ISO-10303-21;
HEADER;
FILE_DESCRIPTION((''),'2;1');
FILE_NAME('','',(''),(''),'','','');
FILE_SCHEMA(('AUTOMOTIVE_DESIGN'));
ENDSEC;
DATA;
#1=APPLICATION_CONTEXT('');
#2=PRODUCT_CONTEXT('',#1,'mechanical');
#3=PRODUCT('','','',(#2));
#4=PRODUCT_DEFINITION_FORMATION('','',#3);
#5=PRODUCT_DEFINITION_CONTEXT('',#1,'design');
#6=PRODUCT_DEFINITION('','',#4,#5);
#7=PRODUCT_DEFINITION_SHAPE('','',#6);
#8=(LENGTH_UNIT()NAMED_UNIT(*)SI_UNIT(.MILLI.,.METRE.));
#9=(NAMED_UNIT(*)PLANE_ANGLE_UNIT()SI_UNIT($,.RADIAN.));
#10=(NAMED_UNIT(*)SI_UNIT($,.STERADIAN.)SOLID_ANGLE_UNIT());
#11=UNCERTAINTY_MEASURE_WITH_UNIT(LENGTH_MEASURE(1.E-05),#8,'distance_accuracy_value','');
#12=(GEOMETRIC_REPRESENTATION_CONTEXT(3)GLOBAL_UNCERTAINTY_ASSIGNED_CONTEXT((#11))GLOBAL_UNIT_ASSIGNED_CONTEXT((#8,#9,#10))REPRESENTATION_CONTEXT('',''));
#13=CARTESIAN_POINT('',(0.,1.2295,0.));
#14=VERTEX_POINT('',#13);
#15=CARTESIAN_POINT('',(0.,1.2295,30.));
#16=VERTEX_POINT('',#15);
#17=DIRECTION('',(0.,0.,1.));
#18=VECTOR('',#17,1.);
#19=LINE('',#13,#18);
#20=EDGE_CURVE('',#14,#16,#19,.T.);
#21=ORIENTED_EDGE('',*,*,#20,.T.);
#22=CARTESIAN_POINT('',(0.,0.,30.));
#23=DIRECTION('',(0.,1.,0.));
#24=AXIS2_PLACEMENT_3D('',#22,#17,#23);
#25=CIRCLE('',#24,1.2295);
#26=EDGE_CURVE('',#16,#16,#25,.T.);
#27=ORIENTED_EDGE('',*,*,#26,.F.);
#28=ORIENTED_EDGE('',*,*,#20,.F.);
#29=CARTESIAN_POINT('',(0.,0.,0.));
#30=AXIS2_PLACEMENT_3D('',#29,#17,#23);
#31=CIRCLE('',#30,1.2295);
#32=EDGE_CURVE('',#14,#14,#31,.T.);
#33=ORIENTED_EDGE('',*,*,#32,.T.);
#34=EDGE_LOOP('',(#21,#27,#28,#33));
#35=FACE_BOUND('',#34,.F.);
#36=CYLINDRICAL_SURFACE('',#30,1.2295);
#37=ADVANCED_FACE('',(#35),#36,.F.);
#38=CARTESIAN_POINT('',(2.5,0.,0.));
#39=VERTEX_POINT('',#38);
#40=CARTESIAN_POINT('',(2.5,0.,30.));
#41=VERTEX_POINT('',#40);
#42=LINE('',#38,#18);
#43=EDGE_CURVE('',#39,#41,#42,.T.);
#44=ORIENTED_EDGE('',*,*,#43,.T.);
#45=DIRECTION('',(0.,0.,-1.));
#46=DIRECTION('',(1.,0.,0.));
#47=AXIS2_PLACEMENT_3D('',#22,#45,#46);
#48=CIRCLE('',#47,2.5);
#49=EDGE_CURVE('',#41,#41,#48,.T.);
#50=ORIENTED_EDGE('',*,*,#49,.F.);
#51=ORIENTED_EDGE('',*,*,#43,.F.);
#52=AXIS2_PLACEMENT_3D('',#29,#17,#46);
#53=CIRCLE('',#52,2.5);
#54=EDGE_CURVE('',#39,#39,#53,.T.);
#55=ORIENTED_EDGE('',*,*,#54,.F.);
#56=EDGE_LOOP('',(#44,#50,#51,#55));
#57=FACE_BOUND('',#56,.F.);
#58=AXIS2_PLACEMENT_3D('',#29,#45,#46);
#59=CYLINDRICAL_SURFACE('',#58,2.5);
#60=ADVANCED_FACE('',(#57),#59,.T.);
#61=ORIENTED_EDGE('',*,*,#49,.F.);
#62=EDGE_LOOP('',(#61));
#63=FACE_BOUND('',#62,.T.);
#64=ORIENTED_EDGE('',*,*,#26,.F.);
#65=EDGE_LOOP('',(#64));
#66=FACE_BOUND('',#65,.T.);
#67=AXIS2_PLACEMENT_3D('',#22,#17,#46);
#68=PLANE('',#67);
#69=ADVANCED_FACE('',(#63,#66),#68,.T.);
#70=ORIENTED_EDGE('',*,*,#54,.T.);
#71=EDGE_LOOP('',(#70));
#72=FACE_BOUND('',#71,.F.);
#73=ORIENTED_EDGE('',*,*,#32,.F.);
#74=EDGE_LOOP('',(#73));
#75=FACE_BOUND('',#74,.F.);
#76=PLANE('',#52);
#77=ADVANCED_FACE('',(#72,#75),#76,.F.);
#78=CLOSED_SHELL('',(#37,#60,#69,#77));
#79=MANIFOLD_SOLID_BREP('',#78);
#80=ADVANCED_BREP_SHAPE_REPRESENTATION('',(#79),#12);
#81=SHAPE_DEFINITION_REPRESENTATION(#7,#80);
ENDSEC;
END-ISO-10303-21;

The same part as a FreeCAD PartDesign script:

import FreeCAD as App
import Part
import Sketcher

V = App.Vector
Q = App.Units.Quantity

doc = App.newDocument("Part")
body = doc.addObject("PartDesign::Body", "Body")

# Sketch on XY plane
sketch1 = body.newObject("Sketcher::SketchObject", "Sketch")
sketch1.AttachmentSupport = (doc.getObject("XY_Plane"), [""])
sketch1.MapMode = "FlatFace"
sketch1.addGeometry(Part.Circle(V(0, 0, 0), V(0, 0, 1), 2.5), False)
sketch1.addConstraint([
    Sketcher.Constraint("Coincident", 0, 3, -1, 1),
    Sketcher.Constraint("Diameter", 0, Q("5 mm")),
])
pad1 = body.newObject("PartDesign::Pad", "Pad")
pad1.Profile = sketch1
pad1.Length = 30

# Sketch on XY plane
sketch2 = body.newObject("Sketcher::SketchObject", "Sketch001")
sketch2.AttachmentSupport = (doc.getObject("XY_Plane"), [""])
sketch2.MapMode = "FlatFace"
sketch2.addGeometry(Part.Circle(V(0, 0, 0), V(0, 0, 1), 1.2), False)
sketch2.addConstraint([
    Sketcher.Constraint("Coincident", 0, 3, -1, 1),
    Sketcher.Constraint("Diameter", 0, Q("2.459 mm")),
])
doc.recompute()
hole = body.newObject("PartDesign::Hole", "Hole")
hole.Profile = sketch2
hole.ThreadType = "None"
hole.Diameter = 2.459
hole.DepthType = "ThroughAll"
hole.Reversed = True

doc.recompute()
